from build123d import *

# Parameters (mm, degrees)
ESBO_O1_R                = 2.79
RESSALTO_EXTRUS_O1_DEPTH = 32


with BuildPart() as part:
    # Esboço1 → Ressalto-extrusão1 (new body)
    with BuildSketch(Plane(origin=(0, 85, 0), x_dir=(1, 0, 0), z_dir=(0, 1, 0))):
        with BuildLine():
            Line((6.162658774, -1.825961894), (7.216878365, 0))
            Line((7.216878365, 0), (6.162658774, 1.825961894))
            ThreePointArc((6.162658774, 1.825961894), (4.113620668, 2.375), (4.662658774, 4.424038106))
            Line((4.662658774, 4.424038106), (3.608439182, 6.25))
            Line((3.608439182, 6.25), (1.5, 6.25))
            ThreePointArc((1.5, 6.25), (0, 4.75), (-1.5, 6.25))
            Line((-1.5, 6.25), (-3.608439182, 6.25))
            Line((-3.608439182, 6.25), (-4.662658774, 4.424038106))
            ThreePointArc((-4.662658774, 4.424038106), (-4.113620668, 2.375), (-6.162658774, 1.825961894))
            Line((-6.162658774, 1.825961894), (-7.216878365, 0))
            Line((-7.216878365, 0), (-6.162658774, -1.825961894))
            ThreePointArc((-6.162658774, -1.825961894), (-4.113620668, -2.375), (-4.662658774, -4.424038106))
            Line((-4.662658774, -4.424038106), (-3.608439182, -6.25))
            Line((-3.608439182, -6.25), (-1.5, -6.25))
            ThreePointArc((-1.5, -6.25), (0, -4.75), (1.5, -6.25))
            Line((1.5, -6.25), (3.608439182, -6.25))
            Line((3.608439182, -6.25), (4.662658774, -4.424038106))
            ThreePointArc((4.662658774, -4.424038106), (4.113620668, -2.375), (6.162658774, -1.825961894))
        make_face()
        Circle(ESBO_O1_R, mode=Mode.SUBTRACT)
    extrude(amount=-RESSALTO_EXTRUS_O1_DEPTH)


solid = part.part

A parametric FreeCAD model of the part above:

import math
import FreeCAD as App
import Part
import Sketcher
from FreeCAD import Vector
Q = App.Units.Quantity

doc = App.newDocument("Part")
params = doc.addObject("Spreadsheet::Sheet", "Params")
for row, (alias, value) in enumerate([
    ("sketch1_radius", "1.5 mm"),
    ("sketch1_diameter", "5.58 mm"),
    ("pad1_length", "32 mm"),
], start=1):
    params.set(f"A{row}", alias)
    params.set(f"B{row}", "=" + value)
    params.setAlias(f"B{row}", alias)

body = doc.addObject("PartDesign::Body", "Body")

# Sketch on XZ plane
sketch1 = body.newObject("Sketcher::SketchObject", "Sketch")
sketch1.AttachmentSupport = (doc.getObject("XZ_Plane"), [""])
sketch1.MapMode = "FlatFace"
sketch1.AttachmentOffset = App.Placement(Vector(0, 0, -85), App.Rotation())
sketch1.addGeometry(Part.LineSegment(Vector(6.2, 1.8, 0), Vector(7.2, 0, 0)), False)
sketch1.addGeometry(Part.LineSegment(Vector(7.2, 0, 0), Vector(6.2, -1.8, 0)), False)
sketch1.addGeometry(Part.ArcOfCircle(Part.Circle(Vector(5.4, -3.1, 0), Vector(0, 0, 1), 1.5), math.radians(60), math.radians(240)), False)
sketch1.addGeometry(Part.LineSegment(Vector(4.7, -4.4, 0), Vector(3.6, -6.2, 0)), False)
sketch1.addGeometry(Part.LineSegment(Vector(3.6, -6.2, 0), Vector(1.5, -6.2, 0)), False)
sketch1.addGeometry(Part.ArcOfCircle(Part.Circle(Vector(0, -6.2, 0), Vector(0, 0, 1), 1.5), math.radians(0), math.radians(180)), False)
sketch1.addGeometry(Part.LineSegment(Vector(-1.5, -6.2, 0), Vector(-3.6, -6.2, 0)), False)
sketch1.addGeometry(Part.LineSegment(Vector(-3.6, -6.2, 0), Vector(-4.7, -4.4, 0)), False)
sketch1.addGeometry(Part.ArcOfCircle(Part.Circle(Vector(-5.4, -3.1, 0), Vector(0, 0, 1), 1.5), math.radians(-60), math.radians(120)), False)
sketch1.addGeometry(Part.LineSegment(Vector(-6.2, -1.8, 0), Vector(-7.2, 0, 0)), False)
sketch1.addGeometry(Part.LineSegment(Vector(-7.2, 0, 0), Vector(-6.2, 1.8, 0)), False)
sketch1.addGeometry(Part.ArcOfCircle(Part.Circle(Vector(-5.4, 3.1, 0), Vector(0, 0, 1), 1.5), math.radians(-120), math.radians(60)), False)
sketch1.addGeometry(Part.LineSegment(Vector(-4.7, 4.4, 0), Vector(-3.6, 6.2, 0)), False)
sketch1.addGeometry(Part.LineSegment(Vector(-3.6, 6.2, 0), Vector(-1.5, 6.2, 0)), False)
sketch1.addGeometry(Part.ArcOfCircle(Part.Circle(Vector(0, 6.2, 0), Vector(0, 0, 1), 1.5), math.radians(180), math.radians(360)), False)
sketch1.addGeometry(Part.LineSegment(Vector(1.5, 6.2, 0), Vector(3.6, 6.2, 0)), False)
sketch1.addGeometry(Part.LineSegment(Vector(3.6, 6.2, 0), Vector(4.7, 4.4, 0)), False)
sketch1.addGeometry(Part.ArcOfCircle(Part.Circle(Vector(5.4, 3.1, 0), Vector(0, 0, 1), 1.5), math.radians(120), math.radians(300)), False)
sketch1.addGeometry(Part.Circle(Vector(0, 0, 0), Vector(0, 0, 1), 2.8), False)
sketch1.addConstraint(Sketcher.Constraint("Coincident", 0, 2, 1, 1))
sketch1.addConstraint(Sketcher.Constraint("Coincident", 1, 2, 2, 1))
sketch1.addConstraint(Sketcher.Constraint("Coincident", 2, 2, 3, 1))
sketch1.addConstraint(Sketcher.Constraint("Coincident", 3, 2, 4, 1))
sketch1.addConstraint(Sketcher.Constraint("Coincident", 4, 2, 5, 1))
sketch1.addConstraint(Sketcher.Constraint("Coincident", 5, 2, 6, 1))
sketch1.addConstraint(Sketcher.Constraint("Coincident", 6, 2, 7, 1))
sketch1.addConstraint(Sketcher.Constraint("Coincident", 7, 2, 8, 1))
sketch1.addConstraint(Sketcher.Constraint("Coincident", 8, 2, 9, 1))
sketch1.addConstraint(Sketcher.Constraint("Coincident", 9, 2, 10, 1))
sketch1.addConstraint(Sketcher.Constraint("Coincident", 10, 2, 11, 1))
sketch1.addConstraint(Sketcher.Constraint("Coincident", 11, 2, 12, 1))
sketch1.addConstraint(Sketcher.Constraint("Coincident", 12, 2, 13, 1))
sketch1.addConstraint(Sketcher.Constraint("Coincident", 13, 2, 14, 1))
sketch1.addConstraint(Sketcher.Constraint("Coincident", 14, 2, 15, 1))
sketch1.addConstraint(Sketcher.Constraint("Coincident", 15, 2, 16, 1))
sketch1.addConstraint(Sketcher.Constraint("Coincident", 16, 2, 17, 1))
sketch1.addConstraint(Sketcher.Constraint("Coincident", 17, 2, 0, 1))
sketch1.addConstraint(Sketcher.Constraint("Horizontal", 4))
sketch1.addConstraint(Sketcher.Constraint("Horizontal", 6))
sketch1.addConstraint(Sketcher.Constraint("Horizontal", 13))
sketch1.addConstraint(Sketcher.Constraint("Horizontal", 15))
sketch1.addConstraint(Sketcher.Constraint("Coincident", 18, 3, -1, 1))
sketch1.addConstraint(Sketcher.Constraint("Equal", 2, 5))
sketch1.addConstraint(Sketcher.Constraint("Equal", 5, 8))
sketch1.addConstraint(Sketcher.Constraint("Equal", 8, 11))
sketch1.addConstraint(Sketcher.Constraint("Equal", 11, 14))
sketch1.addConstraint(Sketcher.Constraint("Equal", 14, 17))
sketch1.addConstraint(Sketcher.Constraint("Symmetric", 2, 3, 11, 3, -1, 1))
sketch1.addConstraint(Sketcher.Constraint("Symmetric", 5, 3, 14, 3, -1, 1))
sketch1.addConstraint(Sketcher.Constraint("Symmetric", 8, 3, 17, 3, -1, 1))
sketch1.addConstraint(Sketcher.Constraint("Symmetric", 0, 2, 9, 2, -1, 1))
sketch1.addConstraint(Sketcher.Constraint("Symmetric", 3, 2, 12, 2, -1, 1))
sketch1.addConstraint(Sketcher.Constraint("Symmetric", 6, 2, 15, 2, -1, 1))
sketch1.addConstraint(Sketcher.Constraint("Symmetric", 2, 3, 8, 3, -2))
sketch1.addConstraint(Sketcher.Constraint("Symmetric", 4, 2, 5, 2, -2))
sketch1.addConstraint(Sketcher.Constraint("PointOnObject", 0, 2, -1))
sketch1.addConstraint(Sketcher.Constraint("Parallel", 1, 3))
sketch1.addConstraint(Sketcher.Constraint("Parallel", 0, 7))
sketch1.addConstraint(Sketcher.Constraint("Parallel", 7, 9))
sketch1.addConstraint(Sketcher.Constraint("Parallel", 3, 10))
sketch1.addConstraint(Sketcher.Constraint("Parallel", 10, 12))
sketch1.addConstraint(Sketcher.Constraint("Parallel", 9, 16))
sketch1.addConstraint(Sketcher.Constraint("Horizontal", 5, 3, 3, 2))
sketch1.addConstraint(Sketcher.Constraint("Horizontal", 2, 2, 7, 2))
sketch1.addConstraint(Sketcher.Constraint("Horizontal", 1, 2, 8, 2))
sketch1.addConstraint(Sketcher.Constraint("Equal", 1, 3))
sketch1.addConstraint(Sketcher.Constraint("Radius", 2, 1.5))
sketch1.addConstraint(Sketcher.Constraint("Diameter", 18, 5.58))
sketch1.addConstraint(Sketcher.Constraint("Angle", 0, Q("-60 deg")))
sketch1.addConstraint(Sketcher.Constraint("DistanceY", 5, 3, 14, 3, 12.5))
sketch1.addConstraint(Sketcher.Constraint("DistanceX", 2, 2, 1, 2, 1.5))
sketch1.addConstraint(Sketcher.Constraint("DistanceY", 8, 3, 11, 3, 6.25))
sketch1.addConstraint(Sketcher.Constraint("DistanceX", 4, 2, 4, 1, 2.108439))
sketch1.setExpression("Constraints[47]", "Params.sketch1_radius")
sketch1.setExpression("Constraints[48]", "Params.sketch1_diameter")
pad1 = body.newObject("PartDesign::Pad", "Pad")
pad1.Profile = sketch1
pad1.setExpression("Length", "Params.pad1_length")

doc.recompute()
